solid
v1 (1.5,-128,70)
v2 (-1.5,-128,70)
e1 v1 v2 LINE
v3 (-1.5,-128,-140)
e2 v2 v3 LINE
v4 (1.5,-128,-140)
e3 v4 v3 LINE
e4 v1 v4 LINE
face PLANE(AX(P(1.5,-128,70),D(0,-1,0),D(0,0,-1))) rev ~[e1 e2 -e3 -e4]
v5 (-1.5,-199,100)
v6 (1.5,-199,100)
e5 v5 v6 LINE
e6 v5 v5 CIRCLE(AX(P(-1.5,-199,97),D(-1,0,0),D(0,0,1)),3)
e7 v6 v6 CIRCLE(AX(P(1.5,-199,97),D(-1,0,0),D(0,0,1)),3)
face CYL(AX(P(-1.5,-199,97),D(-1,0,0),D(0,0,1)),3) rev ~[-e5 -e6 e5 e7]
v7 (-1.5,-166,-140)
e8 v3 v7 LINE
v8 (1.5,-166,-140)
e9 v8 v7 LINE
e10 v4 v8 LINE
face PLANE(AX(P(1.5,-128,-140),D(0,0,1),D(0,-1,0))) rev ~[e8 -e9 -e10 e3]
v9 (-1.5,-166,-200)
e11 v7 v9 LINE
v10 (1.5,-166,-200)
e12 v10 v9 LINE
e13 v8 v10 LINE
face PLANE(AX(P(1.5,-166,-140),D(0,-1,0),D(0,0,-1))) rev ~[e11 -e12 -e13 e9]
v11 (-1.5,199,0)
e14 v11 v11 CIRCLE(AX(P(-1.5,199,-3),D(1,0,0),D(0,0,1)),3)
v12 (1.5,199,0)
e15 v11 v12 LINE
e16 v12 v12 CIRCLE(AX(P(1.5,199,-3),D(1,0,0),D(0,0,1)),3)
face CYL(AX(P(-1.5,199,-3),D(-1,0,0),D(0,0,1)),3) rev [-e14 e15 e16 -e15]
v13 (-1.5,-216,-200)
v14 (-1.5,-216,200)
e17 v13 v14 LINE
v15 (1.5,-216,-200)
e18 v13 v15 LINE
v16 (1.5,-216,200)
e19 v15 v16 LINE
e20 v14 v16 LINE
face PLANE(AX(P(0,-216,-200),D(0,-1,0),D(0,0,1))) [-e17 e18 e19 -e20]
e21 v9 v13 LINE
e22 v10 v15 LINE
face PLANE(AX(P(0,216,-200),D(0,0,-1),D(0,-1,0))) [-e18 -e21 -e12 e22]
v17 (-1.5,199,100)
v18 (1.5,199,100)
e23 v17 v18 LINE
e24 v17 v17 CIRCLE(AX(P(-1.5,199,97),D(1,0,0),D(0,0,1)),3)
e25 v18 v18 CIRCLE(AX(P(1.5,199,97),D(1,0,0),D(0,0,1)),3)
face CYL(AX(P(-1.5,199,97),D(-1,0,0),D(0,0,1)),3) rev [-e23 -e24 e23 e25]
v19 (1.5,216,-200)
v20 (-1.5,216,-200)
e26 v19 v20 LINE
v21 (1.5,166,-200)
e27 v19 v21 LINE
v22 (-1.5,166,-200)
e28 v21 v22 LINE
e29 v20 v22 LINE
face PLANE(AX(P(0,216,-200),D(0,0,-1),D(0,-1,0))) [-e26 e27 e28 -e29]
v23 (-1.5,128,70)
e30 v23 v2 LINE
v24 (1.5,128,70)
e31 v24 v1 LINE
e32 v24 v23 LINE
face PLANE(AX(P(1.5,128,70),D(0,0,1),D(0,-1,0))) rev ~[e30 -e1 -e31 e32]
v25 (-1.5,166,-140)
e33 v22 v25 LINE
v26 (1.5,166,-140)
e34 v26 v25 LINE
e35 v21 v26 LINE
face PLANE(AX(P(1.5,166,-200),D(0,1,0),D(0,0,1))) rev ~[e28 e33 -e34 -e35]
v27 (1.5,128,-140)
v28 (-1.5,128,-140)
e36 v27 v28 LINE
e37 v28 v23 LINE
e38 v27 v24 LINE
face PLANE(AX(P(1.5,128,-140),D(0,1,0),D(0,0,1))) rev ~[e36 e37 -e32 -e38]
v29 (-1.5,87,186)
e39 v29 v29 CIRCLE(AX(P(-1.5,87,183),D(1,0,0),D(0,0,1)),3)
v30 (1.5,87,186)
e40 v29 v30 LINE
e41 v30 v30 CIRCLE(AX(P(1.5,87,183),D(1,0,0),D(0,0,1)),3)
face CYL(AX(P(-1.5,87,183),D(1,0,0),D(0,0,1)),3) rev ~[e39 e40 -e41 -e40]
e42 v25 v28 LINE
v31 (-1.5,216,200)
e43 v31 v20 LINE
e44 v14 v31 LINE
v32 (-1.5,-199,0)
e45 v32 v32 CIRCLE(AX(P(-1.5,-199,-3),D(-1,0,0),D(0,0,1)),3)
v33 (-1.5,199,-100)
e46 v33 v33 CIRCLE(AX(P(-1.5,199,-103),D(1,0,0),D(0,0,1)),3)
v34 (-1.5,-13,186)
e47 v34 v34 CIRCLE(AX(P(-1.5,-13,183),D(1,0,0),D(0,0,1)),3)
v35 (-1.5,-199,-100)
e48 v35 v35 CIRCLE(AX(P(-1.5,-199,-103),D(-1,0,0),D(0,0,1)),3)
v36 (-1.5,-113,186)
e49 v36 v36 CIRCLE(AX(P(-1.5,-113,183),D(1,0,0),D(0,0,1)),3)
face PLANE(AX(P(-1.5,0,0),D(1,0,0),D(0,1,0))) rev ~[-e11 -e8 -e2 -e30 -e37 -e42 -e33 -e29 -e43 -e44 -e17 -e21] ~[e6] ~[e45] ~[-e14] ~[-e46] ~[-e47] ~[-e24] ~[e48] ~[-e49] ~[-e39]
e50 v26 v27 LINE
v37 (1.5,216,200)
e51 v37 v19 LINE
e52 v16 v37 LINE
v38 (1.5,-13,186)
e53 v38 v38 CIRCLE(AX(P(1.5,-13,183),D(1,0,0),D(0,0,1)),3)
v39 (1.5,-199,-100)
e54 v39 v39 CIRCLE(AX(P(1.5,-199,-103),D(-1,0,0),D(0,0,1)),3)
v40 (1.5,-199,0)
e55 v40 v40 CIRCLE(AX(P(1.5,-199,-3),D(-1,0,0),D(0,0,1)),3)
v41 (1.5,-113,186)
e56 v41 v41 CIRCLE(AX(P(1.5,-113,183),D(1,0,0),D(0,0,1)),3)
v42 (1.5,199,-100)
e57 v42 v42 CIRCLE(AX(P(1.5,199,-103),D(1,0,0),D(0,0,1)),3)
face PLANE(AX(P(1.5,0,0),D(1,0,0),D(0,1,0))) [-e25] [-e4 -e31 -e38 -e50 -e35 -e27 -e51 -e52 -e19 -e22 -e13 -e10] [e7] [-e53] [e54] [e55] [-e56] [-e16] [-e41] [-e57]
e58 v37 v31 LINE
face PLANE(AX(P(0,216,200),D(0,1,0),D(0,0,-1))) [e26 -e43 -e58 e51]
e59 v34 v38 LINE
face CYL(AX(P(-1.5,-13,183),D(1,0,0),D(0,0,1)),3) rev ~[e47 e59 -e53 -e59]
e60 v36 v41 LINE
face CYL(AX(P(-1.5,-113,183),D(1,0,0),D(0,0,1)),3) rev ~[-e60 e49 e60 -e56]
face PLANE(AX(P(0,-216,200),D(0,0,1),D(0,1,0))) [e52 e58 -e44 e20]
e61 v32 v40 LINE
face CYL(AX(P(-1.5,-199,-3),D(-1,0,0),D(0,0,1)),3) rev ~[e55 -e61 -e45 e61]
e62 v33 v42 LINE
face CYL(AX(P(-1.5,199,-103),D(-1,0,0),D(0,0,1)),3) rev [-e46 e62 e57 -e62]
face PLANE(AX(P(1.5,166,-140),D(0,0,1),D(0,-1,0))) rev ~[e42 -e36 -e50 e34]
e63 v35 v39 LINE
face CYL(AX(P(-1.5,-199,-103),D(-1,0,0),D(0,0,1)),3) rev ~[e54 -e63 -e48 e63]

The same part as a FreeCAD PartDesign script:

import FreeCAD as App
import Part
import Sketcher
Q = App.Units.Quantity


def add_polygon(sketch, points):
    """Adds a closed chain of lines whose ends are joined by coincident constraints."""
    first, n = sketch.GeometryCount, len(points)
    for a, b in zip(points, points[1:] + points[:1]):
        sketch.addGeometry(Part.LineSegment(App.Vector(*a, 0), App.Vector(*b, 0)), False)
    for i in range(n):
        sketch.addConstraint(Sketcher.Constraint("Coincident", first + i, 2, first + (i + 1) % n, 1))

doc = App.newDocument("Part")
body = doc.addObject("PartDesign::Body", "Body")

# Sketch on YZ plane
sketch1 = doc.addObject("Sketcher::SketchObject", "Sketch")
body.addObject(sketch1)
sketch1.AttachmentSupport = (doc.YZ_Plane, [""])
sketch1.MapMode = "FlatFace"
add_polygon(sketch1, [(216, 200), (-216, 200), (-216, -200), (216, -200)])  # lines 0-3
sketch1.addConstraint([
    Sketcher.Constraint("Horizontal", 0),
    Sketcher.Constraint("Vertical", 1),
    Sketcher.Constraint("Horizontal", 2),
    Sketcher.Constraint("Vertical", 3),
    Sketcher.Constraint("Symmetric", 0, 2, 2, 2, -1, 1),
    Sketcher.Constraint("DistanceX", 0, 2, 0, 1, Q("432 mm")),
    Sketcher.Constraint("DistanceY", 1, 2, 1, 1, Q("400 mm")),
])
pad1 = doc.addObject("PartDesign::Pad", "Pad")
body.addObject(pad1)
pad1.Profile = sketch1
pad1.Length = 3
pad1.Midplane = True

# Sketch on YZ plane
sketch2 = doc.addObject("Sketcher::SketchObject", "Sketch001")
body.addObject(sketch2)
sketch2.AttachmentSupport = (doc.YZ_Plane, [""])
sketch2.MapMode = "FlatFace"
sketch2.AttachmentOffset = App.Placement(App.Vector(0, 0, 1.5), App.Rotation())
add_polygon(sketch2, [(-166, -140), (-166, -200), (166, -200), (166, -140), (128, -140), (128, 70), (-128, 70), (-128, -140)])  # lines 0-7
sketch2.addConstraint([
    Sketcher.Constraint("Vertical", 0),
    Sketcher.Constraint("Horizontal", 1),
    Sketcher.Constraint("Vertical", 2),
    Sketcher.Constraint("Horizontal", 3),
    Sketcher.Constraint("Vertical", 4),
    Sketcher.Constraint("Horizontal", 5),
    Sketcher.Constraint("Vertical", 6),
    Sketcher.Constraint("Horizontal", 7),
    Sketcher.Constraint("Symmetric", 3, 2, 6, 2, -2),
    Sketcher.Constraint("Equal", 3, 7),
    Sketcher.Constraint("DistanceX", 3, 2, 3, 1, Q("38 mm")),
    Sketcher.Constraint("DistanceY", 0, 2, 0, 1, Q("60 mm")),
    Sketcher.Constraint("DistanceY", 1, 2, 4, 2, Q("270 mm")),
    Sketcher.Constraint("DistanceX", 1, 1, 1, 2, Q("332 mm")),
    Sketcher.Constraint("DistanceY", 0, 2, -1, 1, Q("200 mm")),
])
pocket1 = doc.addObject("PartDesign::Pocket", "Pocket")
body.addObject(pocket1)
pocket1.Profile = sketch2
pocket1.Length = 3

# Sketch on YZ plane
sketch3 = doc.addObject("Sketcher::SketchObject", "Sketch002")
body.addObject(sketch3)
sketch3.AttachmentSupport = (doc.YZ_Plane, [""])
sketch3.MapMode = "FlatFace"
sketch3.AttachmentOffset = App.Placement(App.Vector(0, 0, -1.5), App.Rotation())
sketch3.addGeometry([
    Part.Circle(App.Vector(-199, 97, 0), App.Vector(0, 0, 1), 3),
    Part.Circle(App.Vector(-199, -3, 0), App.Vector(0, 0, 1), 3),
    Part.Circle(App.Vector(-199, -103, 0), App.Vector(0, 0, 1), 3),
], False)
sketch3.addConstraint([
    Sketcher.Constraint("Equal", 0, 1),
    Sketcher.Constraint("Equal", 1, 2),
    Sketcher.Constraint("Vertical", 0, 3, 1, 3),
    Sketcher.Constraint("Vertical", 1, 3, 2, 3),
    Sketcher.Constraint("Diameter", 0, Q("6 mm")),
    Sketcher.Constraint("DistanceY", 2, 3, -1, 1, Q("103 mm")),
    Sketcher.Constraint("DistanceY", 1, 3, 0, 3, Q("100 mm")),
    Sketcher.Constraint("DistanceY", 2, 3, 1, 3, Q("100 mm")),
    Sketcher.Constraint("DistanceX", 0, 3, -1, 1, Q("199 mm")),
])
pocket2 = doc.addObject("PartDesign::Pocket", "Pocket001")
body.addObject(pocket2)
pocket2.Profile = sketch3
pocket2.Length = 3
pocket2.Reversed = True
doc.recompute()

mirrored = doc.addObject("PartDesign::Mirrored", "Mirrored")
body.addObject(mirrored)
mirrored.Originals = [pocket2]
mirrored.MirrorPlane = (doc.XZ_Plane, [""])
body.Tip = mirrored

# Sketch on YZ plane
sketch4 = doc.addObject("Sketcher::SketchObject", "Sketch003")
body.addObject(sketch4)
sketch4.AttachmentSupport = (doc.YZ_Plane, [""])
sketch4.MapMode = "FlatFace"
sketch4.AttachmentOffset = App.Placement(App.Vector(0, 0, -1.5), App.Rotation())
sketch4.addGeometry([
    Part.Circle(App.Vector(87, 183, 0), App.Vector(0, 0, 1), 3),
    Part.Circle(App.Vector(-13, 183, 0), App.Vector(0, 0, 1), 3),
    Part.Circle(App.Vector(-113, 183, 0), App.Vector(0, 0, 1), 3),
], False)
sketch4.addConstraint([
    Sketcher.Constraint("Equal", 0, 1),
    Sketcher.Constraint("Equal", 1, 2),
    Sketcher.Constraint("Horizontal", 0, 3, 1, 3),
    Sketcher.Constraint("Horizontal", 1, 3, 2, 3),
    Sketcher.Constraint("Diameter", 0, Q("6 mm")),
    Sketcher.Constraint("DistanceX", -1, 1, 0, 3, Q("87 mm")),
    Sketcher.Constraint("DistanceY", -1, 1, 0, 3, Q("183 mm")),
    Sketcher.Constraint("DistanceX", 1, 3, -1, 1, Q("13 mm")),
    Sketcher.Constraint("DistanceX", 2, 3, -1, 1, Q("113 mm")),
])
doc.recompute()
hole = doc.addObject("PartDesign::Hole", "Hole")
body.addObject(hole)
hole.Profile = sketch4
hole.ThreadType = "None"
hole.Diameter = 6
hole.DepthType = "Dimension"
hole.Depth = 14.2
hole.DrillPoint = "Angled"
hole.DrillPointAngle = 118
hole.Reversed = True

doc.recompute()
